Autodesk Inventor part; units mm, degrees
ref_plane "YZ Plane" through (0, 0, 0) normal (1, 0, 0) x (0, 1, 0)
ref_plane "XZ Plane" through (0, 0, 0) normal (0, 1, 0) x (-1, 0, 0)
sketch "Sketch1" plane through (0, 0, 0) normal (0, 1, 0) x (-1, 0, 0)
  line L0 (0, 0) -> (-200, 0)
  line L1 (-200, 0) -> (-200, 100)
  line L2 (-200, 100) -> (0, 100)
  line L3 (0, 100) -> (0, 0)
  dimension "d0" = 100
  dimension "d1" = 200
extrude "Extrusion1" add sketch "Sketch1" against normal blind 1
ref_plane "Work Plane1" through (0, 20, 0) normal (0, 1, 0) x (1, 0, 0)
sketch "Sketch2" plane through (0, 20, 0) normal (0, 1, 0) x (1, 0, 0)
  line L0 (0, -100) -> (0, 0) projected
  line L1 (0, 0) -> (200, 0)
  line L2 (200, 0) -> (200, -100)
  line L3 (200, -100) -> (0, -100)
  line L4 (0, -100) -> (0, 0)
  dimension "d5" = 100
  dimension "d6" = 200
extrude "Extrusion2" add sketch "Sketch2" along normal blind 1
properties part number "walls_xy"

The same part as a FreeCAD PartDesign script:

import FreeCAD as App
import Part
import Sketcher

V = App.Vector


def add_polygon(sketch, points):
    """Adds a closed chain of lines whose ends are joined by coincident constraints."""
    first, n = sketch.GeometryCount, len(points)
    for a, b in zip(points, points[1:] + points[:1]):
        sketch.addGeometry(Part.LineSegment(App.Vector(*a, 0), App.Vector(*b, 0)), False)
    for i in range(n):
        sketch.addConstraint(Sketcher.Constraint("Coincident", first + i, 2, first + (i + 1) % n, 1))

doc = App.newDocument("Part")
params = doc.addObject("Spreadsheet::Sheet", "Params")
for row, (alias, value) in enumerate([
    ("sketch1_width", "200 mm"),
    ("sketch1_height", "100 mm"),
    ("pad1_length", "1 mm"),
    ("sketch2_width", "200 mm"),
    ("sketch2_height", "100 mm"),
    ("pad2_length", "1 mm"),
], start=1):
    params.set(f"A{row}", alias)
    params.set(f"B{row}", "=" + value)
    params.setAlias(f"B{row}", alias)

body = doc.addObject("PartDesign::Body", "Body")
body.AllowCompound = True

sketch1 = body.newObject("Sketcher::SketchObject", "Sketch")
sketch1.AttachmentSupport = (doc.getObject("XZ_Plane"), [""])
sketch1.MapMode = "FlatFace"
add_polygon(sketch1, [(200, 0), (0, 0), (0, 100), (200, 100)])
sketch1.addConstraint([
    Sketcher.Constraint("Horizontal", 0),
    Sketcher.Constraint("Vertical", 1),
    Sketcher.Constraint("Horizontal", 2),
    Sketcher.Constraint("Vertical", 3),
    Sketcher.Constraint("Coincident", 0, 2, -1, 1),
    Sketcher.Constraint("DistanceX", 0, 2, 0, 1, 200.0),
    Sketcher.Constraint("DistanceY", 1, 1, 1, 2, 100.0),
])
sketch1.setExpression("Constraints[9]", "Params.sketch1_width")
sketch1.setExpression("Constraints[10]", "Params.sketch1_height")
pad1 = body.newObject("PartDesign::Pad", "Pad")
pad1.Profile = sketch1
pad1.setExpression("Length", "Params.pad1_length")

sketch2 = body.newObject("Sketcher::SketchObject", "Sketch001")
sketch2.AttachmentSupport = (doc.getObject("XZ_Plane"), [""])
sketch2.MapMode = "FlatFace"
sketch2.AttachmentOffset = App.Placement(V(0, 0, -20), App.Rotation())
add_polygon(sketch2, [(0, 0), (0, 100), (200, 100), (200, 0)])
sketch2.addConstraint([
    Sketcher.Constraint("Vertical", 0),
    Sketcher.Constraint("Horizontal", 1),
    Sketcher.Constraint("Vertical", 2),
    Sketcher.Constraint("Horizontal", 3),
    Sketcher.Constraint("Coincident", 3, 2, -1, 1),
    Sketcher.Constraint("DistanceX", 1, 1, 1, 2, 200.0),
    Sketcher.Constraint("DistanceY", 0, 1, 0, 2, 100.0),
])
sketch2.setExpression("Constraints[9]", "Params.sketch2_width")
sketch2.setExpression("Constraints[10]", "Params.sketch2_height")
pad2 = body.newObject("PartDesign::Pad", "Pad001")
pad2.Profile = sketch2
pad2.setExpression("Length", "Params.pad2_length")
pad2.Reversed = True

doc.recompute()
